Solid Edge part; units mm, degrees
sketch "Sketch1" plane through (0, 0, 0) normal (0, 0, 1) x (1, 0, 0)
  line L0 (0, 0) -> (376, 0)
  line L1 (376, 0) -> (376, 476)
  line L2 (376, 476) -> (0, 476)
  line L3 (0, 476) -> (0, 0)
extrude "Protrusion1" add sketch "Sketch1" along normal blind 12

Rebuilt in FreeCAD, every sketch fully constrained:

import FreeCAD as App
import Part
import Sketcher
Q = App.Units.Quantity


def add_polygon(sketch, points):
    """Adds a closed chain of lines whose ends are joined by coincident constraints."""
    first, n = sketch.GeometryCount, len(points)
    for a, b in zip(points, points[1:] + points[:1]):
        sketch.addGeometry(Part.LineSegment(App.Vector(*a, 0), App.Vector(*b, 0)), False)
    for i in range(n):
        sketch.addConstraint(Sketcher.Constraint("Coincident", first + i, 2, first + (i + 1) % n, 1))

doc = App.newDocument("Part")
body = doc.addObject("PartDesign::Body", "Body")

# Sketch on XY plane
sketch1 = body.newObject("Sketcher::SketchObject", "Sketch")
sketch1.AttachmentSupport = (doc.getObject("XY_Plane"), [""])
sketch1.MapMode = "FlatFace"
add_polygon(sketch1, [(0, 476), (0, 0), (376, 0), (376, 476)])  # lines 0-3
sketch1.addConstraint([
    Sketcher.Constraint("Vertical", 0),
    Sketcher.Constraint("Horizontal", 1),
    Sketcher.Constraint("Vertical", 2),
    Sketcher.Constraint("Horizontal", 3),
    Sketcher.Constraint("Coincident", 0, 2, -1, 1),
    Sketcher.Constraint("DistanceX", 1, 1, 1, 2, Q("376 mm")),
    Sketcher.Constraint("DistanceY", 0, 2, 0, 1, Q("476 mm")),
])
pad1 = body.newObject("PartDesign::Pad", "Pad")
pad1.Profile = sketch1
pad1.Length = 12

doc.recompute()
